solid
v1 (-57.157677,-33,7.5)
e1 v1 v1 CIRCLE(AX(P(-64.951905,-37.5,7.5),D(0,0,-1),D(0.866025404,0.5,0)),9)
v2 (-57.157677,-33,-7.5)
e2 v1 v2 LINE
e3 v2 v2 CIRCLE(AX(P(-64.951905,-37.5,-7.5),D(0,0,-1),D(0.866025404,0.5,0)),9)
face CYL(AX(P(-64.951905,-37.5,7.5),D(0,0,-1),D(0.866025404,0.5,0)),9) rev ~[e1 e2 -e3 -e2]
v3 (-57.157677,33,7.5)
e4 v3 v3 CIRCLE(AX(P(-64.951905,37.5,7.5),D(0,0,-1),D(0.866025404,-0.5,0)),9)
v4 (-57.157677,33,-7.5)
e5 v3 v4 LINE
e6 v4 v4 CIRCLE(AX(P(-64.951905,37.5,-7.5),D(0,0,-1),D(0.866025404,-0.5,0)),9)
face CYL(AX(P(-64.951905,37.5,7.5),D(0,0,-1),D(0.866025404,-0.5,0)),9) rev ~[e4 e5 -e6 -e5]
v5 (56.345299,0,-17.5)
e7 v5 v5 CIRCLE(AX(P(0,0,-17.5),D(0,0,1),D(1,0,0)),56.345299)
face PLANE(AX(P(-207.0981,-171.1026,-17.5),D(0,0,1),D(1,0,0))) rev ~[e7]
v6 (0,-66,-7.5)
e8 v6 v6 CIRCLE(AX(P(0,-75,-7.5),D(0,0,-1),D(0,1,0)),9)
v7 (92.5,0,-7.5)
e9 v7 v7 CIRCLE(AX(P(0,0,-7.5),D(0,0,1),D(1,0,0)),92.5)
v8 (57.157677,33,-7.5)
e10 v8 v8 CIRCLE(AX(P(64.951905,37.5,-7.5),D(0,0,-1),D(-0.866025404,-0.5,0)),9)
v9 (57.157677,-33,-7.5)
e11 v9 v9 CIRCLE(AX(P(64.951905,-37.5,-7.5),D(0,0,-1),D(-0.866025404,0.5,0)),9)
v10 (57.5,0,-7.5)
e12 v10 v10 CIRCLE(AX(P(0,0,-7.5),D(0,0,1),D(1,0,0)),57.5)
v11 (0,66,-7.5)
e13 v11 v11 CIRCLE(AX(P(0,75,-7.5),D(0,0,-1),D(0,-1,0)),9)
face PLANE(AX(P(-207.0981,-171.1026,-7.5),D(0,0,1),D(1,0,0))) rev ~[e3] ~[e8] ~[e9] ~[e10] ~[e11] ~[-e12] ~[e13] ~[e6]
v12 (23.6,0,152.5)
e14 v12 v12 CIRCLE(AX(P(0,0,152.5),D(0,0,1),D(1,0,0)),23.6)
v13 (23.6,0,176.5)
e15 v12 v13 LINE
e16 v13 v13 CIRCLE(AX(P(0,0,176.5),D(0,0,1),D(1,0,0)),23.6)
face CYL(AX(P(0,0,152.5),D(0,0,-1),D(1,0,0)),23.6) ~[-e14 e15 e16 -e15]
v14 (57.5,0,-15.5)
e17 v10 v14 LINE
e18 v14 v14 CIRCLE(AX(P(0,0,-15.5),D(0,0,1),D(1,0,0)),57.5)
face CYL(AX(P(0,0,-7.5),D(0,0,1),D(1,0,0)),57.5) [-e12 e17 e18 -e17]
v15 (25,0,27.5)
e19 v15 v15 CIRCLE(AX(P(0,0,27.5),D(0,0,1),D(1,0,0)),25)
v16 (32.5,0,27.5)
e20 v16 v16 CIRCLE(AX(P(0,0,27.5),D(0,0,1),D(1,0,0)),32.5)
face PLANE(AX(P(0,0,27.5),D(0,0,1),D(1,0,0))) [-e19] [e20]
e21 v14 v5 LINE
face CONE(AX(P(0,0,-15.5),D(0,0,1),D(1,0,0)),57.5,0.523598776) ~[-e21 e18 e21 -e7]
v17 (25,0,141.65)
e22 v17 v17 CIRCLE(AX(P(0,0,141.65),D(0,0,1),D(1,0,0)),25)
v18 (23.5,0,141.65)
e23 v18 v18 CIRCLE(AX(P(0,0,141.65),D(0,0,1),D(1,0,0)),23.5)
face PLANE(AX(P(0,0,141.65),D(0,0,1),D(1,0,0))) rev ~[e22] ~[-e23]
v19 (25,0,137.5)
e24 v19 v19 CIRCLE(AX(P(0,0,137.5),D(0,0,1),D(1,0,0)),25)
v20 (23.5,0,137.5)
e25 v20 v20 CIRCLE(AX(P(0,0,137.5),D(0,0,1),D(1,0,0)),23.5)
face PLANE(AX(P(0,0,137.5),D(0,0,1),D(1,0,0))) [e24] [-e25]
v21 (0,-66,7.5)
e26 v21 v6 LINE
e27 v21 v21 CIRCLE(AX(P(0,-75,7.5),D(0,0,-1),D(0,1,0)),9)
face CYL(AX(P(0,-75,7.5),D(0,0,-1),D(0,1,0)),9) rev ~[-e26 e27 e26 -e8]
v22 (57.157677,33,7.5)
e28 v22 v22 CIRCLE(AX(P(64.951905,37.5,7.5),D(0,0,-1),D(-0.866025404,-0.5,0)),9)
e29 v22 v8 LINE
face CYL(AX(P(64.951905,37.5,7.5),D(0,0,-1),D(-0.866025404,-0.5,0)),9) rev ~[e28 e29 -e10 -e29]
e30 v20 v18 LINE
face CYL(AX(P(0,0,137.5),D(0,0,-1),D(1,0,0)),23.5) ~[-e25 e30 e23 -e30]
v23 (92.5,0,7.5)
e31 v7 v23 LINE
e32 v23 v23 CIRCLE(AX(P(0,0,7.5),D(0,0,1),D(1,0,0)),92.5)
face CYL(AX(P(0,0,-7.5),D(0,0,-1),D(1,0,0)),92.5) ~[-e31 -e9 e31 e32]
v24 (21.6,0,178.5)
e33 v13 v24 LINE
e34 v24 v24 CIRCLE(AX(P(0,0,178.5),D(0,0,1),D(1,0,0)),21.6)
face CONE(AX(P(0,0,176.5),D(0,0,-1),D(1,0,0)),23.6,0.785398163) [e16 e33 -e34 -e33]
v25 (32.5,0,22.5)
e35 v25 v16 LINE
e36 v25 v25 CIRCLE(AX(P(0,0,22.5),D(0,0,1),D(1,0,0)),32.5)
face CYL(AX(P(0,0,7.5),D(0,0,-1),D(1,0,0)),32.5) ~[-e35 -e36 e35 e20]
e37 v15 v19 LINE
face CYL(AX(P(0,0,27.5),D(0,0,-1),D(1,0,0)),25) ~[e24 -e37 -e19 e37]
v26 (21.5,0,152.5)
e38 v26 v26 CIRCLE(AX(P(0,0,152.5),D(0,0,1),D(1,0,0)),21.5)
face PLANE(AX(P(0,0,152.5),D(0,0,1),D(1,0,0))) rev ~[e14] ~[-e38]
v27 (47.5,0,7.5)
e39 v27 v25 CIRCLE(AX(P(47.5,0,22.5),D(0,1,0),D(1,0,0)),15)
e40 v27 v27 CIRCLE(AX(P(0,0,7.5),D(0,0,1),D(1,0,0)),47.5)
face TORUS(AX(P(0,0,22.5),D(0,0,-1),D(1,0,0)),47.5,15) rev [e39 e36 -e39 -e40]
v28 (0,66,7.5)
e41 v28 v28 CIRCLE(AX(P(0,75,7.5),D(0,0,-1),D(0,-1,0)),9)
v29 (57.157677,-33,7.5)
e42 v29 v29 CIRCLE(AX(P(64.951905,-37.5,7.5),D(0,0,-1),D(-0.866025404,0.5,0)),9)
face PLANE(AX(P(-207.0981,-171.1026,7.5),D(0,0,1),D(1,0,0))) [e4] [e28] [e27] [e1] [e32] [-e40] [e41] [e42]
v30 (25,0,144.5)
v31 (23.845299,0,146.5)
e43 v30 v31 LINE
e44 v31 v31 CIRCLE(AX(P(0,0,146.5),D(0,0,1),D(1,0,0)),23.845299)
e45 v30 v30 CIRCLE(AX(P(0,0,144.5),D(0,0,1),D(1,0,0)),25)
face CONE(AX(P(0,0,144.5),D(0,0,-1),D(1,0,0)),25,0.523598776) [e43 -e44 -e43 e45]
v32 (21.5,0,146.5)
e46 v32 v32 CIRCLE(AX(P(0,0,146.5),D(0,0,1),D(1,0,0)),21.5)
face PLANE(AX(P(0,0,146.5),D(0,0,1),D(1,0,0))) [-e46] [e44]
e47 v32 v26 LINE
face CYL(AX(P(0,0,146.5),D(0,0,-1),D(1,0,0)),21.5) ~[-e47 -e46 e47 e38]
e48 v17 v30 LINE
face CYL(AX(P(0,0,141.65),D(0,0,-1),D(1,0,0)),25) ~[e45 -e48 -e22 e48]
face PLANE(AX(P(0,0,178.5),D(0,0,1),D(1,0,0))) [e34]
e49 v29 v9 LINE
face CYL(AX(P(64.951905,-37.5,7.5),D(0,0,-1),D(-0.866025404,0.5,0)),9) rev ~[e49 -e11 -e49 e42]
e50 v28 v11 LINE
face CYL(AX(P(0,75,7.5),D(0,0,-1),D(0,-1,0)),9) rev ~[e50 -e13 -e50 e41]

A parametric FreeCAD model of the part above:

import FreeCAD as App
import Part
import Sketcher
Q = App.Units.Quantity


def edges_at(feature, points):
    """Names of the edges that pass closest to the given points."""
    edges = feature.Shape.Edges
    near = lambda p: min(range(len(edges)), key=lambda i: edges[i].distToShape(Part.Vertex(*p))[0])
    return sorted({f"Edge{near(p) + 1}" for p in points})

doc = App.newDocument("Part")
body = doc.addObject("PartDesign::Body", "Body")

# Sketch on XY plane
sketch1 = body.newObject("Sketcher::SketchObject", "Sketch")
sketch1.AttachmentSupport = (doc.getObject("XY_Plane"), [""])
sketch1.MapMode = "FlatFace"
sketch1.AttachmentOffset = App.Placement(App.Vector(0, 0, -7.5), App.Rotation())
sketch1.addGeometry(Part.Circle(App.Vector(0, 0, 0), App.Vector(0, 0, 1), 92), False)
sketch1.addConstraint([
    Sketcher.Constraint("Coincident", 0, 3, -1, 1),
    Sketcher.Constraint("Diameter", 0, Q("185 mm")),
])
pad1 = body.newObject("PartDesign::Pad", "Pad")
pad1.Profile = sketch1
pad1.Length = 15

# Sketch on XY plane
sketch2 = body.newObject("Sketcher::SketchObject", "Sketch001")
sketch2.AttachmentSupport = (doc.getObject("XY_Plane"), [""])
sketch2.MapMode = "FlatFace"
sketch2.AttachmentOffset = App.Placement(App.Vector(0, 0, -7.5), App.Rotation())
sketch2.addGeometry(Part.Circle(App.Vector(0, 0, 0), App.Vector(0, 0, 1), 58), False)
sketch2.addConstraint([
    Sketcher.Constraint("Coincident", 0, 3, -1, 1),
    Sketcher.Constraint("Diameter", 0, Q("115 mm")),
])
pad2 = body.newObject("PartDesign::Pad", "Pad001")
pad2.Profile = sketch2
pad2.Length = 10
pad2.Reversed = True
doc.recompute()

chamfer = body.newObject("PartDesign::Chamfer", "Chamfer")
chamfer.Base = (pad2, edges_at(pad2, [(-57.5, 0, -17.5)]))
chamfer.ChamferType = "Distance and Angle"
chamfer.Size = 2
chamfer.Angle = 30

# Sketch on XY plane
sketch3 = body.newObject("Sketcher::SketchObject", "Sketch002")
sketch3.AttachmentSupport = (doc.getObject("XY_Plane"), [""])
sketch3.MapMode = "FlatFace"
sketch3.AttachmentOffset = App.Placement(App.Vector(0, 0, 7.5), App.Rotation())
sketch3.addGeometry(Part.Circle(App.Vector(0, 0, 0), App.Vector(0, 0, 1), 32), False)
sketch3.addConstraint([
    Sketcher.Constraint("Coincident", 0, 3, -1, 1),
    Sketcher.Constraint("Diameter", 0, Q("65 mm")),
])
pad3 = body.newObject("PartDesign::Pad", "Pad002")
pad3.Profile = sketch3
pad3.Length = 20
doc.recompute()

fillet = body.newObject("PartDesign::Fillet", "Fillet")
fillet.Base = (pad3, edges_at(pad3, [(-32.5, 0, 7.5)]))
fillet.Radius = 15

# Sketch on XY plane
sketch4 = body.newObject("Sketcher::SketchObject", "Sketch003")
sketch4.AttachmentSupport = (doc.getObject("XY_Plane"), [""])
sketch4.MapMode = "FlatFace"
sketch4.AttachmentOffset = App.Placement(App.Vector(0, 0, 27.5), App.Rotation())
sketch4.addGeometry(Part.Circle(App.Vector(0, 0, 0), App.Vector(0, 0, 1), 25), False)
sketch4.addConstraint([
    Sketcher.Constraint("Coincident", 0, 3, -1, 1),
    Sketcher.Constraint("Diameter", 0, Q("50 mm")),
])
pad4 = body.newObject("PartDesign::Pad", "Pad003")
pad4.Profile = sketch4
pad4.Length = 110

# Sketch on XY plane
sketch5 = body.newObject("Sketcher::SketchObject", "Sketch004")
sketch5.AttachmentSupport = (doc.getObject("XY_Plane"), [""])
sketch5.MapMode = "FlatFace"
sketch5.AttachmentOffset = App.Placement(App.Vector(0, 0, 137.5), App.Rotation())
sketch5.addGeometry(Part.Circle(App.Vector(0, 0, 0), App.Vector(0, 0, 1), 24), False)
sketch5.addConstraint([
    Sketcher.Constraint("Coincident", 0, 3, -1, 1),
    Sketcher.Constraint("Diameter", 0, Q("47 mm")),
])
pad5 = body.newObject("PartDesign::Pad", "Pad004")
pad5.Profile = sketch5
pad5.Length = 4.15

# Sketch on XY plane
sketch6 = body.newObject("Sketcher::SketchObject", "Sketch005")
sketch6.AttachmentSupport = (doc.getObject("XY_Plane"), [""])
sketch6.MapMode = "FlatFace"
sketch6.AttachmentOffset = App.Placement(App.Vector(0, 0, 141.65), App.Rotation())
sketch6.addGeometry(Part.Circle(App.Vector(0, 0, 0), App.Vector(0, 0, 1), 25), False)
sketch6.addConstraint([
    Sketcher.Constraint("Coincident", 0, 3, -1, 1),
    Sketcher.Constraint("Diameter", 0, Q("50 mm")),
])
pad6 = body.newObject("PartDesign::Pad", "Pad005")
pad6.Profile = sketch6
pad6.Length = 4.85
doc.recompute()

chamfer2 = body.newObject("PartDesign::Chamfer", "Chamfer001")
chamfer2.Base = (pad6, edges_at(pad6, [(-25, 0, 146.5)]))
chamfer2.ChamferType = "Distance and Angle"
chamfer2.Size = 2
chamfer2.Angle = 30

# Sketch on XY plane
sketch7 = body.newObject("Sketcher::SketchObject", "Sketch006")
sketch7.AttachmentSupport = (doc.getObject("XY_Plane"), [""])
sketch7.MapMode = "FlatFace"
sketch7.AttachmentOffset = App.Placement(App.Vector(0, 0, 146.5), App.Rotation())
sketch7.addGeometry(Part.Circle(App.Vector(0, 0, 0), App.Vector(0, 0, 1), 22), False)
sketch7.addConstraint([
    Sketcher.Constraint("Coincident", 0, 3, -1, 1),
    Sketcher.Constraint("Diameter", 0, Q("43 mm")),
])
pad7 = body.newObject("PartDesign::Pad", "Pad006")
pad7.Profile = sketch7
pad7.Length = 6

# Sketch on XY plane
sketch8 = body.newObject("Sketcher::SketchObject", "Sketch007")
sketch8.AttachmentSupport = (doc.getObject("XY_Plane"), [""])
sketch8.MapMode = "FlatFace"
sketch8.AttachmentOffset = App.Placement(App.Vector(0, 0, 152.5), App.Rotation())
sketch8.addGeometry(Part.Circle(App.Vector(0, 0, 0), App.Vector(0, 0, 1), 24), False)
sketch8.addConstraint([
    Sketcher.Constraint("Coincident", 0, 3, -1, 1),
    Sketcher.Constraint("Diameter", 0, Q("47.2 mm")),
])
pad8 = body.newObject("PartDesign::Pad", "Pad007")
pad8.Profile = sketch8
pad8.Length = 26
doc.recompute()

chamfer3 = body.newObject("PartDesign::Chamfer", "Chamfer002")
chamfer3.Base = (pad8, edges_at(pad8, [(-23.6, 0, 178.5)]))
chamfer3.Size = 2

# Sketch on XY plane
sketch9 = body.newObject("Sketcher::SketchObject", "Sketch008")
sketch9.AttachmentSupport = (doc.getObject("XY_Plane"), [""])
sketch9.MapMode = "FlatFace"
sketch9.AttachmentOffset = App.Placement(App.Vector(0, 0, 7.5), App.Rotation())
sketch9.addGeometry(Part.Circle(App.Vector(0, 75, 0), App.Vector(0, 0, 1), 9), False)
sketch9.addConstraint([
    Sketcher.Constraint("PointOnObject", 0, 3, -2),
    Sketcher.Constraint("Diameter", 0, Q("18 mm")),
    Sketcher.Constraint("DistanceY", -1, 1, 0, 3, Q("75 mm")),
])
doc.recompute()
hole = body.newObject("PartDesign::Hole", "Hole")
hole.Profile = sketch9
hole.ThreadType = "None"
hole.Diameter = 18
hole.DepthType = "ThroughAll"
doc.recompute()

polarpattern = body.newObject("PartDesign::PolarPattern", "PolarPattern")
polarpattern.Originals = [hole]
polarpattern.Axis = (doc.getObject("Z_Axis"), [""])
polarpattern.Angle = 360
polarpattern.Occurrences = 6
body.Tip = polarpattern

doc.recompute()
